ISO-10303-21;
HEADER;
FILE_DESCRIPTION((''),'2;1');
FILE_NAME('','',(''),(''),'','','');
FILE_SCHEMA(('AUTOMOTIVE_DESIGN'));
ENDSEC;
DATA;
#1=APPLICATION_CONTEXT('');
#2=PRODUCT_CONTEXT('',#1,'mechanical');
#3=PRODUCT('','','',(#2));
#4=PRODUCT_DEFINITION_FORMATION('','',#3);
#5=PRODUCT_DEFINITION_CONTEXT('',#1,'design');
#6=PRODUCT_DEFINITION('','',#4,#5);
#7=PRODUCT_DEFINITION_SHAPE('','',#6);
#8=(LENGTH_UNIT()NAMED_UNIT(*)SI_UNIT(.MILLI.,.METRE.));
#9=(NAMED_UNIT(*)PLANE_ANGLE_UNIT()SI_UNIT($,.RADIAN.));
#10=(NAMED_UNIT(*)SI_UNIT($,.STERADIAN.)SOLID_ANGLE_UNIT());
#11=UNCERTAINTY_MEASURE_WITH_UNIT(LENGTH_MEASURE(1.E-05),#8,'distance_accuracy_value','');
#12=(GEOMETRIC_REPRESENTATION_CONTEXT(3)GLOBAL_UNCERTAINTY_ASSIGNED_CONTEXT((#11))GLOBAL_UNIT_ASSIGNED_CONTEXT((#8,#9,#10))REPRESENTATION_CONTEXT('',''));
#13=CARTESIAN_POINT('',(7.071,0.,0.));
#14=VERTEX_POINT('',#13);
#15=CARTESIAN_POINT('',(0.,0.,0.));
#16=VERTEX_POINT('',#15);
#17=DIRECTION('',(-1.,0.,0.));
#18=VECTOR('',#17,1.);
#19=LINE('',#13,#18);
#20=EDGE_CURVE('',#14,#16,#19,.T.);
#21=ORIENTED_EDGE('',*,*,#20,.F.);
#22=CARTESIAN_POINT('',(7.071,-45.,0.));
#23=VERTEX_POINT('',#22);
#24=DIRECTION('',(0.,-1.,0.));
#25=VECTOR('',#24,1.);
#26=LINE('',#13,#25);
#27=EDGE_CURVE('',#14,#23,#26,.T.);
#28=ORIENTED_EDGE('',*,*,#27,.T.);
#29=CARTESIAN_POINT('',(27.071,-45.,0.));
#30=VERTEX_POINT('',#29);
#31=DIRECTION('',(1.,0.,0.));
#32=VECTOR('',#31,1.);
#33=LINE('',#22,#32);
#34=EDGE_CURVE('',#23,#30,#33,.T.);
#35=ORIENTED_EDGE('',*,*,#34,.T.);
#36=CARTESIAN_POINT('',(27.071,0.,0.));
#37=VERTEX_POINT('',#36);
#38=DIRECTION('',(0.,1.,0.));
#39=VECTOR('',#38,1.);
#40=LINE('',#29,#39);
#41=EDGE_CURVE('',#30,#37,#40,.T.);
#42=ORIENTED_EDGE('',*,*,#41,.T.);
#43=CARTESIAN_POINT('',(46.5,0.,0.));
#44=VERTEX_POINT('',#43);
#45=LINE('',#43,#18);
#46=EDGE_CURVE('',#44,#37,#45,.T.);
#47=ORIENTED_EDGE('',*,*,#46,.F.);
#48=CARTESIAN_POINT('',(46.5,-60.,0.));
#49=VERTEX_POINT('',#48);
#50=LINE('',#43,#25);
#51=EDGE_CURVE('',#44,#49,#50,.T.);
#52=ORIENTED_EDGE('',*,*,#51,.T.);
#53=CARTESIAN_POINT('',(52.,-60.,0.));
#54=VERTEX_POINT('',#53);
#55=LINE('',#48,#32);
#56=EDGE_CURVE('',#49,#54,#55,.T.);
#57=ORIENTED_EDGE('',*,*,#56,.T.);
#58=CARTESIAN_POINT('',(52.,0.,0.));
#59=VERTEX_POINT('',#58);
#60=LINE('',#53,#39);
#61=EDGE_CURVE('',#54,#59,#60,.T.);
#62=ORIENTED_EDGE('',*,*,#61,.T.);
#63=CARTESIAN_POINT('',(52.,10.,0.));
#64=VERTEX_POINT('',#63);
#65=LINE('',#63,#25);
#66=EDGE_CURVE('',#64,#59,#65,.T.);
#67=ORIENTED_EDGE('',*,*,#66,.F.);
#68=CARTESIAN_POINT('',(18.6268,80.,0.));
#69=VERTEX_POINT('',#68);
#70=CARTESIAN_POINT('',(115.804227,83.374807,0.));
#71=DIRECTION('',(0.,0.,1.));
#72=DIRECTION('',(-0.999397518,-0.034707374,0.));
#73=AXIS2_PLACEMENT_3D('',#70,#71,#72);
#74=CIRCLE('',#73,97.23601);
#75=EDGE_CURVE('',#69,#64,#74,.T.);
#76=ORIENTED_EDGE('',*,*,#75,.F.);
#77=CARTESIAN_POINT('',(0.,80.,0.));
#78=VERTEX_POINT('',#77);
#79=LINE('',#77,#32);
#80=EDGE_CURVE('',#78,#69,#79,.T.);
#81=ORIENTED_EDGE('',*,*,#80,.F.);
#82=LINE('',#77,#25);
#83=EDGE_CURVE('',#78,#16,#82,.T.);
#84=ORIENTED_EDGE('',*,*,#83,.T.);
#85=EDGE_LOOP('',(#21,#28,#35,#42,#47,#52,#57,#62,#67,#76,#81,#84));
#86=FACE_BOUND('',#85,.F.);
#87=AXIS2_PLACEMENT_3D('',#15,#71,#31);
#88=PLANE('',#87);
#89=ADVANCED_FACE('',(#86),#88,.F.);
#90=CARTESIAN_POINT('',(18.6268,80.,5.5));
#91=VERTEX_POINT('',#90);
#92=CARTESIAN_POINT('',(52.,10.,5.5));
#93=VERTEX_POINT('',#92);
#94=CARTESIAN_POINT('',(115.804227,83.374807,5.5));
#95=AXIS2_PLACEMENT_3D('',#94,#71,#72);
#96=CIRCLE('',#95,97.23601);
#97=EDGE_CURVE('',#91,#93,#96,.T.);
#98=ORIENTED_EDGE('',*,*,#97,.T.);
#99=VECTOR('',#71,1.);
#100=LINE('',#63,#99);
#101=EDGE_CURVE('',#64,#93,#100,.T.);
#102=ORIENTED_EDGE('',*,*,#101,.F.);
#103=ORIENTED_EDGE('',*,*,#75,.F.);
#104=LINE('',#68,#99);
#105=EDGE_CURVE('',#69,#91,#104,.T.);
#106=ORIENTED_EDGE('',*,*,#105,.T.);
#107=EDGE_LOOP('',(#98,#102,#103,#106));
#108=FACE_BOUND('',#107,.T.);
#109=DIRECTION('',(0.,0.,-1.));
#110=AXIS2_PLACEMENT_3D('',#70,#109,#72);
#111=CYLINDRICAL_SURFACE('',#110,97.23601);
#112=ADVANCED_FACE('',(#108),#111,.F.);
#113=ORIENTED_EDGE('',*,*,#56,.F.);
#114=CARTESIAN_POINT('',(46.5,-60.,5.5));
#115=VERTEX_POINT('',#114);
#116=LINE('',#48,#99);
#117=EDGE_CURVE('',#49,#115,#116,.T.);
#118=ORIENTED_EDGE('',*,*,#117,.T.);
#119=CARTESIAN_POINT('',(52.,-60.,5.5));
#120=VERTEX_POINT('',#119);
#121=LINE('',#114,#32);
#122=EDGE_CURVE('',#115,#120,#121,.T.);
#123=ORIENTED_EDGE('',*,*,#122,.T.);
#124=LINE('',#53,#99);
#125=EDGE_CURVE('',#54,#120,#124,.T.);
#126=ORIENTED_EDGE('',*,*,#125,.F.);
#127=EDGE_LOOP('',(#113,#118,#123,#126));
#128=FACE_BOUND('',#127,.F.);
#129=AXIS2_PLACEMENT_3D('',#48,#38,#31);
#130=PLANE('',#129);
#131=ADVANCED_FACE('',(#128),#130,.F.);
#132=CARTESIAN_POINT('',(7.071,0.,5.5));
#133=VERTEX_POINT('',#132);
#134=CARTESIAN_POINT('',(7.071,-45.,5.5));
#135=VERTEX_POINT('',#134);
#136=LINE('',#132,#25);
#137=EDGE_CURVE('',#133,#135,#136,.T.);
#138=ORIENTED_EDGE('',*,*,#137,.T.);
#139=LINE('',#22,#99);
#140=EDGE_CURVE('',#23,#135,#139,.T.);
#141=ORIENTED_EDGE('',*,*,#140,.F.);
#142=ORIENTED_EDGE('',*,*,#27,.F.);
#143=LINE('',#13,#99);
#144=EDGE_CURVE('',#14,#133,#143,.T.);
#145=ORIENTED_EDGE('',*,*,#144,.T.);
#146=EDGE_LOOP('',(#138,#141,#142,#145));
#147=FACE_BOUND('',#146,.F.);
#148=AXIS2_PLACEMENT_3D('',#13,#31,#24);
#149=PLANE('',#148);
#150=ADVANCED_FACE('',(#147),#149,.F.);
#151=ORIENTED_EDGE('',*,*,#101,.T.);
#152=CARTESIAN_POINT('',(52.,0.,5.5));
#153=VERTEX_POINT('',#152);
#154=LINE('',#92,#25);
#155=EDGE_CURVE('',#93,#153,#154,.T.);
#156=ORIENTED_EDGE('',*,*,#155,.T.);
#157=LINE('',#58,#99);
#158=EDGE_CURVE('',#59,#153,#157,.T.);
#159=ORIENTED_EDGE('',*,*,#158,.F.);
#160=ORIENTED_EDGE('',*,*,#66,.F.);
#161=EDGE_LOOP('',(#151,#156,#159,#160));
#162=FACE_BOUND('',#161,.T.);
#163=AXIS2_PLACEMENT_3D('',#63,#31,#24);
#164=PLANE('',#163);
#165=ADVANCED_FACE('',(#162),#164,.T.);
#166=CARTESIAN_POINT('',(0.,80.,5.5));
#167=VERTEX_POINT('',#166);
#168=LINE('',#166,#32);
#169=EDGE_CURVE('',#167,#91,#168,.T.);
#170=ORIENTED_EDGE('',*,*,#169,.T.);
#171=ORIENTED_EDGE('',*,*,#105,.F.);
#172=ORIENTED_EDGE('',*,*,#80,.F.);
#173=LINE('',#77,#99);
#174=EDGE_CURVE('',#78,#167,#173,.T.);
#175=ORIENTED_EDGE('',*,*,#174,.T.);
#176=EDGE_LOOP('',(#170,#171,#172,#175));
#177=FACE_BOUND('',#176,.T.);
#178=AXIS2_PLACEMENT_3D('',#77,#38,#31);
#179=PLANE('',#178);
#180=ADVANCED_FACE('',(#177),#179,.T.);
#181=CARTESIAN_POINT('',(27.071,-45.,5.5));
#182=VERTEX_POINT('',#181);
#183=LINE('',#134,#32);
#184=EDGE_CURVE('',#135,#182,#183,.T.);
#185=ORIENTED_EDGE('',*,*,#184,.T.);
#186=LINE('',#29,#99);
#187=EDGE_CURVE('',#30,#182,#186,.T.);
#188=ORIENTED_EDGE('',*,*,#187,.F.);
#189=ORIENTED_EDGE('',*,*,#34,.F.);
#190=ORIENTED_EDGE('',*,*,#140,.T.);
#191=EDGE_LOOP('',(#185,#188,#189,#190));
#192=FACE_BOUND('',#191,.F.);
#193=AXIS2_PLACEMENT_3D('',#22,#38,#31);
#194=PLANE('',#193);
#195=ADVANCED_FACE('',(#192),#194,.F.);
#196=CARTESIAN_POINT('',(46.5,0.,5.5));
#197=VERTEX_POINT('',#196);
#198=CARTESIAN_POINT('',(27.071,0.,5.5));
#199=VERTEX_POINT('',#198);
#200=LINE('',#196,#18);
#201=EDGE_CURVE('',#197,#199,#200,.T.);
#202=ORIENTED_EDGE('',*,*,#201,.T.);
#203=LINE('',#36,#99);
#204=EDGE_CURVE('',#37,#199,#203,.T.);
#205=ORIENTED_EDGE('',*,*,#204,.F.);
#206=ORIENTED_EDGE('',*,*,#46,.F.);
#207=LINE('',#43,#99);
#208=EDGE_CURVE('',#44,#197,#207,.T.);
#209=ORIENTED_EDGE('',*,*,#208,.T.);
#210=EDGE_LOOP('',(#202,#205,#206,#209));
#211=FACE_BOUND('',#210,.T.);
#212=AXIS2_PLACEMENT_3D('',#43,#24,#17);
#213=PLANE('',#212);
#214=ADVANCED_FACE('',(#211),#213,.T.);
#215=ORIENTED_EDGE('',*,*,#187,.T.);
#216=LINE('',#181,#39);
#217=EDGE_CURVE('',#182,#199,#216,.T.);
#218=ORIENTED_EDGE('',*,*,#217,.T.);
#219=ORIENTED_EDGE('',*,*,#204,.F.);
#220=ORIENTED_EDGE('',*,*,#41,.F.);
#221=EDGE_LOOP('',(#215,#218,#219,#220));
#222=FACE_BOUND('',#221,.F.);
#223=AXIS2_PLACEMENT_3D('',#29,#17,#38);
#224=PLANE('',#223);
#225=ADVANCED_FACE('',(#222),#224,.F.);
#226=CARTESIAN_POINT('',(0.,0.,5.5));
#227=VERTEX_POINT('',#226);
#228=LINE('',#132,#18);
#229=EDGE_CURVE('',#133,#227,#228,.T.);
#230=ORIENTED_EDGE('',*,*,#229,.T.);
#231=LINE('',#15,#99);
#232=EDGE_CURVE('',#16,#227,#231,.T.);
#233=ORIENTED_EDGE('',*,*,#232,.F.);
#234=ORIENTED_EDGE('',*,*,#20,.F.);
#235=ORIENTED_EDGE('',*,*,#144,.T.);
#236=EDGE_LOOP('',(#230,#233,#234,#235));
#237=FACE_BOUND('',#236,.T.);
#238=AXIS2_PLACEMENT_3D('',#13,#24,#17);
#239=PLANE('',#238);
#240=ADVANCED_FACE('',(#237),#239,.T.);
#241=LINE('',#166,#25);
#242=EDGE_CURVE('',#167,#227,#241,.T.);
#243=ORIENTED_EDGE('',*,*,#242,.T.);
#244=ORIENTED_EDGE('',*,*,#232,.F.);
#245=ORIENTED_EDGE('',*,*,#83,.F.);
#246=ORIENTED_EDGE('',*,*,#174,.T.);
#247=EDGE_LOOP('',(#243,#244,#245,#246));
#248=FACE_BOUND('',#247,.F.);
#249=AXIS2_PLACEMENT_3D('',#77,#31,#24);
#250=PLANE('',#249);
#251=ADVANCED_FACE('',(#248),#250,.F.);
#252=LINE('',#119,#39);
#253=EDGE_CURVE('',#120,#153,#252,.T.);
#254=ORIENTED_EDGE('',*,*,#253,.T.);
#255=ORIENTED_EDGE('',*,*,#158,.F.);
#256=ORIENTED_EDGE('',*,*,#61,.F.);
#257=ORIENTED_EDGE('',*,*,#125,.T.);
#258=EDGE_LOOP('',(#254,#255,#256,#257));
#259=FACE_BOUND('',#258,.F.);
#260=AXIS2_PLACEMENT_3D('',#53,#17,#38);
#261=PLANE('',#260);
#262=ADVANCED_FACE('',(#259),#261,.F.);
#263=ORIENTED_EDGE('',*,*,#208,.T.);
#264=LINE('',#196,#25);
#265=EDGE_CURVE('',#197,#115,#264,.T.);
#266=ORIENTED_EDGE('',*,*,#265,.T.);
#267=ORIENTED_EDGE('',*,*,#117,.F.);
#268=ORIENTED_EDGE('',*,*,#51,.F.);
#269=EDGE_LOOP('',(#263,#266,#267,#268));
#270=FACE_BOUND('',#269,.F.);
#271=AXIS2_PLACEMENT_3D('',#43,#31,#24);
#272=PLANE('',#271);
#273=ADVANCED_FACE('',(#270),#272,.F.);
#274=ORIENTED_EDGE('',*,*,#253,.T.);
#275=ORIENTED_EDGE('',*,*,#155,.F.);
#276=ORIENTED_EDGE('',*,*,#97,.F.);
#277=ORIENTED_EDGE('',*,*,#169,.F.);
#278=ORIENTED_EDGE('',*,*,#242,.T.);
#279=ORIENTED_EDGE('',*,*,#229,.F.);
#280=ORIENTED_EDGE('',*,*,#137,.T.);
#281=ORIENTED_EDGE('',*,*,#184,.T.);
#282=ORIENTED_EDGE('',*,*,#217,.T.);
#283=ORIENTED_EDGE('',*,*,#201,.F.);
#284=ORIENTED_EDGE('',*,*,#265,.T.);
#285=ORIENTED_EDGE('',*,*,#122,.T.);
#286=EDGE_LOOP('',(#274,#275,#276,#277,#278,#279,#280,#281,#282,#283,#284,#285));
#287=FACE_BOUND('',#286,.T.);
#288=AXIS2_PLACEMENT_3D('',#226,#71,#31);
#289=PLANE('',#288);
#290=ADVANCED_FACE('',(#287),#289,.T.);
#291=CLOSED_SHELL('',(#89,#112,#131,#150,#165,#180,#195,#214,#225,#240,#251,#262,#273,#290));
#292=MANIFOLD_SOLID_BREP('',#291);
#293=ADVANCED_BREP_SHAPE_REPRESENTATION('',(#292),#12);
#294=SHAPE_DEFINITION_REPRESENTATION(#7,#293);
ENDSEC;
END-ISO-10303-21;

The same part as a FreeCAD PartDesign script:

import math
import FreeCAD as App
import Part
import Sketcher

V = App.Vector

doc = App.newDocument("Part")
body = doc.addObject("PartDesign::Body", "Body")

sketch1 = body.newObject("Sketcher::SketchObject", "Sketch")
sketch1.AttachmentSupport = (doc.getObject("XY_Plane"), [""])
sketch1.MapMode = "FlatFace"
sketch1.addGeometry([
    Part.ArcOfCircle(Part.Circle(V(115.8042, 83.3748, 0), V(0, 0, 1), 97.235983), math.radians(-178.011018), math.radians(-131.009099)),
    Part.LineSegment(V(18.6268, 80, 0), V(0, 80, 0)),
    Part.LineSegment(V(0, 80, 0), V(0, 0, 0)),
    Part.LineSegment(V(0, 0, 0), V(7.071, 0, 0)),
    Part.LineSegment(V(7.071, 0, 0), V(7.071, -45, 0)),
    Part.LineSegment(V(7.071, -45, 0), V(27.071, -45, 0)),
    Part.LineSegment(V(27.071, -45, 0), V(27.071, 0, 0)),
    Part.LineSegment(V(27.071, 0, 0), V(46.5, 0, 0)),
    Part.LineSegment(V(46.5, 0, 0), V(46.5, -60, 0)),
    Part.LineSegment(V(46.5, -60, 0), V(52, -60, 0)),
    Part.LineSegment(V(52, -60, 0), V(52, 10, 0)),
], False)
sketch1.addConstraint([
    Sketcher.Constraint("Coincident", 0, 1, 1, 1),
    Sketcher.Constraint("Coincident", 1, 2, 2, 1),
    Sketcher.Constraint("Coincident", 2, 2, 3, 1),
    Sketcher.Constraint("Coincident", 3, 2, 4, 1),
    Sketcher.Constraint("Coincident", 4, 2, 5, 1),
    Sketcher.Constraint("Coincident", 5, 2, 6, 1),
    Sketcher.Constraint("Coincident", 6, 2, 7, 1),
    Sketcher.Constraint("Coincident", 7, 2, 8, 1),
    Sketcher.Constraint("Coincident", 8, 2, 9, 1),
    Sketcher.Constraint("Coincident", 9, 2, 10, 1),
    Sketcher.Constraint("Coincident", 10, 2, 0, 2),
    Sketcher.Constraint("Horizontal", 1),
    Sketcher.Constraint("Vertical", 2),
    Sketcher.Constraint("Horizontal", 3),
    Sketcher.Constraint("Vertical", 4),
    Sketcher.Constraint("Horizontal", 5),
    Sketcher.Constraint("Vertical", 6),
    Sketcher.Constraint("Horizontal", 7),
    Sketcher.Constraint("Vertical", 8),
    Sketcher.Constraint("Horizontal", 9),
    Sketcher.Constraint("Vertical", 10),
    Sketcher.Constraint("Coincident", 2, 2, -1, 1),
    Sketcher.Constraint("PointOnObject", 6, 2, -1),
    Sketcher.Constraint("DistanceY", 4, 2, 4, 1, 45.0),
    Sketcher.Constraint("DistanceY", 8, 2, 8, 1, 60.0),
    Sketcher.Constraint("DistanceX", -1, 1, 9, 2, 52.0),
    Sketcher.Constraint("DistanceX", 5, 1, 5, 2, 20.0),
    Sketcher.Constraint("DistanceX", 7, 1, 7, 2, 19.429),
    Sketcher.Constraint("DistanceY", 2, 2, 2, 1, 80.0),
    Sketcher.Constraint("DistanceY", 10, 1, 10, 2, 70.0),
    Sketcher.Constraint("DistanceX", 9, 1, 9, 2, 5.5),
    Sketcher.Constraint("Radius", 0, 97.236),
    Sketcher.Constraint("DistanceX", 1, 2, 1, 1, 18.6268),
])
pad1 = body.newObject("PartDesign::Pad", "Pad")
pad1.Profile = sketch1
pad1.Length = 5.5

doc.recompute()
